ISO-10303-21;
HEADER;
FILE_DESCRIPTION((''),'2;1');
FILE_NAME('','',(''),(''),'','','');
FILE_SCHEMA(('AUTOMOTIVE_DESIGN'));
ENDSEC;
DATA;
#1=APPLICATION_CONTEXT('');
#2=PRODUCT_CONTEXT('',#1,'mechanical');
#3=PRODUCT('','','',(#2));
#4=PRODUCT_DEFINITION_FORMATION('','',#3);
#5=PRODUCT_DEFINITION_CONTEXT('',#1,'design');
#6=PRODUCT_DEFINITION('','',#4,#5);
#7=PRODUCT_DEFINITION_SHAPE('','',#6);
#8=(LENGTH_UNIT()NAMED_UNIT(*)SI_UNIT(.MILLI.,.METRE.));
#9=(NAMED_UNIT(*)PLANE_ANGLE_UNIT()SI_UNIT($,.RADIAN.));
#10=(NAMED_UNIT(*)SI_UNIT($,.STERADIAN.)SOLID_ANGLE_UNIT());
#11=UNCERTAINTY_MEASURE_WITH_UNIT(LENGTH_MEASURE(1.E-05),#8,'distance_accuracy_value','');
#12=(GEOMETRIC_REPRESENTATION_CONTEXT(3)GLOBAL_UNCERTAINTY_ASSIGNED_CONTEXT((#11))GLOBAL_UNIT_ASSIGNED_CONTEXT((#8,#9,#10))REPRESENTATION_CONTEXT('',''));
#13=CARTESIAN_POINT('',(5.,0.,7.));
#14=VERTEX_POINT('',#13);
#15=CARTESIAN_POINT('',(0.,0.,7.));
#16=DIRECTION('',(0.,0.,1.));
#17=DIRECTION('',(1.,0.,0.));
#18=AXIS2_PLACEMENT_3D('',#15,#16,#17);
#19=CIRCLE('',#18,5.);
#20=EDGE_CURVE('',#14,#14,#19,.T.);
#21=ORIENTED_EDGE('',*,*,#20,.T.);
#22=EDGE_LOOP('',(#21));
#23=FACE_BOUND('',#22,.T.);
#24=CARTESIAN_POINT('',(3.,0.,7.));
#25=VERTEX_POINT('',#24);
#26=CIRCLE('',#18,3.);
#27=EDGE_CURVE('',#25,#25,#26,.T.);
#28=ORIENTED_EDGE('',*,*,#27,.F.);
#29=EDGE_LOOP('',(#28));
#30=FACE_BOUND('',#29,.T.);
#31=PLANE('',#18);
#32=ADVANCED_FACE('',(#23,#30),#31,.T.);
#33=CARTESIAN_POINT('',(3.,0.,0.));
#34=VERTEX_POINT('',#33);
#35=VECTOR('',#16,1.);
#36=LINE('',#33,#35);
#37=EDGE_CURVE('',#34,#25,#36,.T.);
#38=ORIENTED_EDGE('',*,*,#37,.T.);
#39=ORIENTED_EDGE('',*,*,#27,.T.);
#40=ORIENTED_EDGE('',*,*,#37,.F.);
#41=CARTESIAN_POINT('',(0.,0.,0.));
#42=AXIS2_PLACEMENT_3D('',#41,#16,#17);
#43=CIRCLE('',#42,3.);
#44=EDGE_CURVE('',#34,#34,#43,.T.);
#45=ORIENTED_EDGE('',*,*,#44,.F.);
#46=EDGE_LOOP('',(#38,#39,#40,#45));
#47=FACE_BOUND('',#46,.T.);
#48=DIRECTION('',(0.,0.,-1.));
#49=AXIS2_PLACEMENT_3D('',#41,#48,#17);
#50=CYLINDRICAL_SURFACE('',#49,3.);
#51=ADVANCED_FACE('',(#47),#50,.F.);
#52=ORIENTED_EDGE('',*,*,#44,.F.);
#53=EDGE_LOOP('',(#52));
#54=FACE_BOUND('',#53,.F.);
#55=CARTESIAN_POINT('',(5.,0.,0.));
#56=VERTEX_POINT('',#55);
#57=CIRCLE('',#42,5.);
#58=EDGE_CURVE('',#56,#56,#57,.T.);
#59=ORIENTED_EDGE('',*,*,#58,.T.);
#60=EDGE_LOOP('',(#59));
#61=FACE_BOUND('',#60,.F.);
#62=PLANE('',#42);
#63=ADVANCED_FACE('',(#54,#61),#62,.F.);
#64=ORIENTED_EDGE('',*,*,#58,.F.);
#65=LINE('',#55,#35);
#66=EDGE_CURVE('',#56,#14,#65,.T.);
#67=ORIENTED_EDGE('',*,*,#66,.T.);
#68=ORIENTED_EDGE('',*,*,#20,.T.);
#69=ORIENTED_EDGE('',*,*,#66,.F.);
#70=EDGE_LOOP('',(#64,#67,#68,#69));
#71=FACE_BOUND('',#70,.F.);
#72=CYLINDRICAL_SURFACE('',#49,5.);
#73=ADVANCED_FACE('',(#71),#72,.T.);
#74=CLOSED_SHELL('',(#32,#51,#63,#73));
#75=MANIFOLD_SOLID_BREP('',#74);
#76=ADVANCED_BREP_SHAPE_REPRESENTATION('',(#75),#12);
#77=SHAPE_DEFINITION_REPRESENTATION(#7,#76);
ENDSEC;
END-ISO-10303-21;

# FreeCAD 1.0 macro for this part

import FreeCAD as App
import Part
import Sketcher

doc = App.newDocument("Part")
body = doc.addObject("PartDesign::Body", "Body")

# Sketch on XY plane
sketch1 = doc.addObject("Sketcher::SketchObject", "Sketch")
body.addObject(sketch1)
sketch1.AttachmentSupport = (doc.XY_Plane, [""])
sketch1.MapMode = "FlatFace"
sketch1.addGeometry([
    Part.Circle(App.Vector(0, 0, 0), App.Vector(0, 0, 1), 5),
    Part.Circle(App.Vector(0, 0, 0), App.Vector(0, 0, 1), 3),
], False)
sketch1.addConstraint([
    Sketcher.Constraint("Coincident", 0, 3, -1, 1),
    Sketcher.Constraint("Coincident", 1, 3, -1, 1),
    Sketcher.Constraint("Diameter", 0, 10.0),
    Sketcher.Constraint("Diameter", 1, 6.0),
])
pad1 = doc.addObject("PartDesign::Pad", "Pad")
body.addObject(pad1)
pad1.Profile = sketch1
pad1.Length = 7

doc.recompute()
